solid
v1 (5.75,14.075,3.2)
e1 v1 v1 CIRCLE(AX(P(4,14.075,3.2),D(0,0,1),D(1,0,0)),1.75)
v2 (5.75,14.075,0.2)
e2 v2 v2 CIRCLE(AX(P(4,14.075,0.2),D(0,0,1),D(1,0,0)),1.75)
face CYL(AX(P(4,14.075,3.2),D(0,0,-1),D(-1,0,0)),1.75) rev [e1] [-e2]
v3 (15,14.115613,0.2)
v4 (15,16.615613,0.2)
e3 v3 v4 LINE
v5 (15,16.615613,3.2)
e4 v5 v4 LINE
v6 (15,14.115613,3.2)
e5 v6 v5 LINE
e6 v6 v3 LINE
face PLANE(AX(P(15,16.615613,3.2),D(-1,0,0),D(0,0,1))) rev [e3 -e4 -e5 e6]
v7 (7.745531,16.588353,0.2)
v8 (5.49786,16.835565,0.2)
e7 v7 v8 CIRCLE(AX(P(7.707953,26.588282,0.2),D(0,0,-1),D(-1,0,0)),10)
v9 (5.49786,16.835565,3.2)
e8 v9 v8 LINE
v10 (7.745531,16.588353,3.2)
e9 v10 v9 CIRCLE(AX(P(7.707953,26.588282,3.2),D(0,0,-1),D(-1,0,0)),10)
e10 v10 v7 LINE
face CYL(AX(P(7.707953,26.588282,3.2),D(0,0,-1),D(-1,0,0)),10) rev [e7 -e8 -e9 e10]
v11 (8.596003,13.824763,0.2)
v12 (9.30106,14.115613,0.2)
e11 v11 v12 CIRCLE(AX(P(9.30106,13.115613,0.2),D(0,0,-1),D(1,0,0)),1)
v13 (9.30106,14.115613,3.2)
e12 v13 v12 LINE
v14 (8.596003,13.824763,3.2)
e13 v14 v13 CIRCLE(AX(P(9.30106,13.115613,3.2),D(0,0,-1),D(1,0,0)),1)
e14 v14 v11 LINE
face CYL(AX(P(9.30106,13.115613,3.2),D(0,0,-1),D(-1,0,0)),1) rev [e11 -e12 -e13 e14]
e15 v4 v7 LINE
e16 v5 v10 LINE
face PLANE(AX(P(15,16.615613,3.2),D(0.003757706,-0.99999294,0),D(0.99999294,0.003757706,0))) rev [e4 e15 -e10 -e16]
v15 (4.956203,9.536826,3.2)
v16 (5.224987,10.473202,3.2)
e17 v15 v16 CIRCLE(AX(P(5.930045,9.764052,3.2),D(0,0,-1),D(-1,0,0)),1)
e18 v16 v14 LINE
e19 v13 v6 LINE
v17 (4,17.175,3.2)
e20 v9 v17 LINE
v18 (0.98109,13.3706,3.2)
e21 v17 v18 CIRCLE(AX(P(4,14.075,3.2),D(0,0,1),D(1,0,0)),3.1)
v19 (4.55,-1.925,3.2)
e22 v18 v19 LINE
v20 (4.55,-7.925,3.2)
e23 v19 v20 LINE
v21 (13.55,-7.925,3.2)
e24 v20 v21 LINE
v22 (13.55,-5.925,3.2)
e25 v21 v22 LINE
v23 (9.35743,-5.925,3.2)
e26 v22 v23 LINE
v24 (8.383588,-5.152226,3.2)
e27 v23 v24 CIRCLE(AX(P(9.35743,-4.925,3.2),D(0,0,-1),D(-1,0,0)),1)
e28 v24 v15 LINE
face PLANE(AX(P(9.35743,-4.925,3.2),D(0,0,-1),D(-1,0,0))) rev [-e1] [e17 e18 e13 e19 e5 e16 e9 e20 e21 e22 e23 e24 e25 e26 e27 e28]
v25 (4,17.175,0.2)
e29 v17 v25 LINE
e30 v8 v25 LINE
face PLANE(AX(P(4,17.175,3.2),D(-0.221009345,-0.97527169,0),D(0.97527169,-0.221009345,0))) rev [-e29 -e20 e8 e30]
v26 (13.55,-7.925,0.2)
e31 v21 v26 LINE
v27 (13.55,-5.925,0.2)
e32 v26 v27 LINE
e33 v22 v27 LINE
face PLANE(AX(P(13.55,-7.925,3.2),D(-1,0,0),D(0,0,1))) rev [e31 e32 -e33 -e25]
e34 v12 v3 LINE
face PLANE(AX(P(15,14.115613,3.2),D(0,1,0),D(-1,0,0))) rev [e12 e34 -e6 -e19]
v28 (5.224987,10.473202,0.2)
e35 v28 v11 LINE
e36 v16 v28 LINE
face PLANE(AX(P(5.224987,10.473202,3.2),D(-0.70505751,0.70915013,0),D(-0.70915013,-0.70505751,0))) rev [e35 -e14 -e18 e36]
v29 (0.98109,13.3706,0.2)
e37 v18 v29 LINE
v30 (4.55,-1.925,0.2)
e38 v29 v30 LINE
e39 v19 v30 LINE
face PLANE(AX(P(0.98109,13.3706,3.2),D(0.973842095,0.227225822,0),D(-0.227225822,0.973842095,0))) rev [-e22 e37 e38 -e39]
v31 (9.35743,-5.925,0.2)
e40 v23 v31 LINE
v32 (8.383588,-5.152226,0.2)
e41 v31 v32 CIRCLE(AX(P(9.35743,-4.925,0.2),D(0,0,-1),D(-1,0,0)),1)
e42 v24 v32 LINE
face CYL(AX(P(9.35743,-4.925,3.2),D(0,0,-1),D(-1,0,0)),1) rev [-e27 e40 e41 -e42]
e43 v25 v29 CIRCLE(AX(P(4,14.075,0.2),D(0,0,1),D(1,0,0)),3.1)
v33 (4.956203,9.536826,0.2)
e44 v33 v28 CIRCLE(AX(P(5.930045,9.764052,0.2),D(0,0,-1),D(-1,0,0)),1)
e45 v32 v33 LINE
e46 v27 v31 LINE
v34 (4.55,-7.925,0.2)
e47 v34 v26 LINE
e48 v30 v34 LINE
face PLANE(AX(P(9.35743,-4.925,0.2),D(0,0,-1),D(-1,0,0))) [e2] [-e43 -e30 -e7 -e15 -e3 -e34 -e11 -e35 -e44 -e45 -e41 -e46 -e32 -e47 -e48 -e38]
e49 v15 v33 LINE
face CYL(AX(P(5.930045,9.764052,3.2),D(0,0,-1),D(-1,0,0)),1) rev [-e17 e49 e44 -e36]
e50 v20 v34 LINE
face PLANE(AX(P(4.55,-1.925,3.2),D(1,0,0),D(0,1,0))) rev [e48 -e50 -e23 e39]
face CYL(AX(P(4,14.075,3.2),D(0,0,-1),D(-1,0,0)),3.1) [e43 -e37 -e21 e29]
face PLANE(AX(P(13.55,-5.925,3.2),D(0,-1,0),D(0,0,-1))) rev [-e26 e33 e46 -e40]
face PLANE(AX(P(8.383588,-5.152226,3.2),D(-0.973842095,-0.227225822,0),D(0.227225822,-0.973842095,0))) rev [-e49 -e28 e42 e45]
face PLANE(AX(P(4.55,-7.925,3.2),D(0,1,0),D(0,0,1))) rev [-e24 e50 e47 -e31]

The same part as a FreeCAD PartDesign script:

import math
import FreeCAD as App
import Part
import Sketcher
from FreeCAD import Vector
Q = App.Units.Quantity

doc = App.newDocument("Part")
body = doc.addObject("PartDesign::Body", "Body")

# Sketch on XY plane
sketch1 = body.newObject("Sketcher::SketchObject", "Sketch")
sketch1.AttachmentSupport = (doc.getObject("XY_Plane"), [""])
sketch1.MapMode = "FlatFace"
sketch1.AttachmentOffset = App.Placement(Vector(0, 0, 0.2), App.Rotation())
sketch1.addGeometry([
    Part.LineSegment(Vector(1, 13.4, 0), Vector(4.5, -1.9, 0)),  # 0
    Part.LineSegment(Vector(4.5, -1.9, 0), Vector(4.5, -7.9, 0)),  # 1
    Part.LineSegment(Vector(4.5, -7.9, 0), Vector(13.6, -7.9, 0)),  # 2
    Part.LineSegment(Vector(13.6, -7.9, 0), Vector(13.6, -5.9, 0)),  # 3
    Part.LineSegment(Vector(13.6, -5.9, 0), Vector(9.4, -5.9, 0)),  # 4
    Part.ArcOfCircle(Part.Circle(Vector(9.4, -4.9, 0), Vector(0, 0, 1), 1), math.radians(-167), math.radians(-90)),  # 5
    Part.LineSegment(Vector(8.4, -5.2, 0), Vector(5, 9.5, 0)),  # 6
    Part.ArcOfCircle(Part.Circle(Vector(5.9, 9.8, 0), Vector(0, 0, 1), 1), math.radians(135), math.radians(193)),  # 7
    Part.LineSegment(Vector(5.2, 10.5, 0), Vector(8.6, 13.8, 0)),  # 8
    Part.ArcOfCircle(Part.Circle(Vector(9.3, 13.1, 0), Vector(0, 0, 1), 1), math.radians(90), math.radians(135)),  # 9
    Part.LineSegment(Vector(9.3, 14.1, 0), Vector(15, 14.1, 0)),  # 10
    Part.LineSegment(Vector(15, 14.1, 0), Vector(15, 16.6, 0)),  # 11
    Part.LineSegment(Vector(15, 16.6, 0), Vector(7.7, 16.6, 0)),  # 12
    Part.ArcOfCircle(Part.Circle(Vector(7.7, 26.6, 0), Vector(0, 0, 1), 10), math.radians(-102.77), math.radians(-89.78)),  # 13
    Part.LineSegment(Vector(5.5, 16.8, 0), Vector(4, 17.2, 0)),  # 14
    Part.ArcOfCircle(Part.Circle(Vector(4, 14.1, 0), Vector(0, 0, 1), 3.1), math.radians(90), math.radians(193)),  # 15
    Part.Circle(Vector(4, 14.1, 0), Vector(0, 0, 1), 1.8),  # 16
], False)
sketch1.addConstraint([
    Sketcher.Constraint("Coincident", 0, 2, 1, 1),
    Sketcher.Constraint("Coincident", 1, 2, 2, 1),
    Sketcher.Constraint("Coincident", 2, 2, 3, 1),
    Sketcher.Constraint("Coincident", 3, 2, 4, 1),
    Sketcher.Constraint("Tangent", 4, 2, 5, 2),
    Sketcher.Constraint("Tangent", 5, 1, 6, 1),
    Sketcher.Constraint("Tangent", 6, 2, 7, 2),
    Sketcher.Constraint("Tangent", 7, 1, 8, 1),
    Sketcher.Constraint("Tangent", 8, 2, 9, 2),
    Sketcher.Constraint("Tangent", 9, 1, 10, 1),
    Sketcher.Constraint("Coincident", 10, 2, 11, 1),
    Sketcher.Constraint("Coincident", 11, 2, 12, 1),
    Sketcher.Constraint("Tangent", 12, 2, 13, 2),
    Sketcher.Constraint("Tangent", 13, 1, 14, 1),
    Sketcher.Constraint("Coincident", 14, 2, 15, 1),
    Sketcher.Constraint("Tangent", 15, 2, 0, 1),
    Sketcher.Constraint("Vertical", 1),
    Sketcher.Constraint("Horizontal", 2),
    Sketcher.Constraint("Vertical", 3),
    Sketcher.Constraint("Horizontal", 4),
    Sketcher.Constraint("Horizontal", 10),
    Sketcher.Constraint("Vertical", 11),
    Sketcher.Constraint("Coincident", 16, 3, 15, 3),
    Sketcher.Constraint("Equal", 5, 7),
    Sketcher.Constraint("Equal", 7, 9),
    Sketcher.Constraint("Parallel", 0, 6),
    Sketcher.Constraint("Vertical", 16, 3, 14, 2),
    Sketcher.Constraint("Radius", 5, Q("1 mm")),
    Sketcher.Constraint("Radius", 13, Q("10 mm")),
    Sketcher.Constraint("Diameter", 16, Q("3.5 mm")),
    Sketcher.Constraint("Radius", 15, Q("3.1 mm")),
    Sketcher.Constraint("DistanceX", 2, 1, 2, 2, Q("9 mm")),
    Sketcher.Constraint("DistanceY", 1, 2, 1, 1, Q("6 mm")),
    Sketcher.Constraint("DistanceY", 3, 1, 3, 2, Q("2 mm")),
    Sketcher.Constraint("DistanceY", 11, 1, 11, 2, Q("2.5 mm")),
    Sketcher.Constraint("DistanceX", -1, 1, 15, 3, Q("4 mm")),
    Sketcher.Constraint("DistanceX", -1, 1, 10, 2, Q("15 mm")),
    Sketcher.Constraint("DistanceY", 5, 3, 15, 3, Q("19 mm")),
    Sketcher.Constraint("DistanceX", -1, 1, 0, 2, Q("4.55 mm")),
    Sketcher.Constraint("DistanceY", 5, 3, -1, 1, Q("4.925 mm")),
    Sketcher.Constraint("Distance", 8, Q("4.7536 mm")),
    Sketcher.Constraint("DistanceX", 4, 2, 4, 1, Q("4.19257 mm")),
    Sketcher.Constraint("DistanceX", 10, 1, 10, 2, Q("5.69894 mm")),
    Sketcher.Constraint("DistanceX", 13, 1, 9, 1, Q("3.8032 mm")),
    Sketcher.Constraint("Distance", 12, Q("7.254521 mm")),
    Sketcher.Constraint("Distance", 14, Q("1.535839 mm")),
])
pad1 = body.newObject("PartDesign::Pad", "Pad")
pad1.Profile = sketch1
pad1.Length = 3

doc.recompute()
